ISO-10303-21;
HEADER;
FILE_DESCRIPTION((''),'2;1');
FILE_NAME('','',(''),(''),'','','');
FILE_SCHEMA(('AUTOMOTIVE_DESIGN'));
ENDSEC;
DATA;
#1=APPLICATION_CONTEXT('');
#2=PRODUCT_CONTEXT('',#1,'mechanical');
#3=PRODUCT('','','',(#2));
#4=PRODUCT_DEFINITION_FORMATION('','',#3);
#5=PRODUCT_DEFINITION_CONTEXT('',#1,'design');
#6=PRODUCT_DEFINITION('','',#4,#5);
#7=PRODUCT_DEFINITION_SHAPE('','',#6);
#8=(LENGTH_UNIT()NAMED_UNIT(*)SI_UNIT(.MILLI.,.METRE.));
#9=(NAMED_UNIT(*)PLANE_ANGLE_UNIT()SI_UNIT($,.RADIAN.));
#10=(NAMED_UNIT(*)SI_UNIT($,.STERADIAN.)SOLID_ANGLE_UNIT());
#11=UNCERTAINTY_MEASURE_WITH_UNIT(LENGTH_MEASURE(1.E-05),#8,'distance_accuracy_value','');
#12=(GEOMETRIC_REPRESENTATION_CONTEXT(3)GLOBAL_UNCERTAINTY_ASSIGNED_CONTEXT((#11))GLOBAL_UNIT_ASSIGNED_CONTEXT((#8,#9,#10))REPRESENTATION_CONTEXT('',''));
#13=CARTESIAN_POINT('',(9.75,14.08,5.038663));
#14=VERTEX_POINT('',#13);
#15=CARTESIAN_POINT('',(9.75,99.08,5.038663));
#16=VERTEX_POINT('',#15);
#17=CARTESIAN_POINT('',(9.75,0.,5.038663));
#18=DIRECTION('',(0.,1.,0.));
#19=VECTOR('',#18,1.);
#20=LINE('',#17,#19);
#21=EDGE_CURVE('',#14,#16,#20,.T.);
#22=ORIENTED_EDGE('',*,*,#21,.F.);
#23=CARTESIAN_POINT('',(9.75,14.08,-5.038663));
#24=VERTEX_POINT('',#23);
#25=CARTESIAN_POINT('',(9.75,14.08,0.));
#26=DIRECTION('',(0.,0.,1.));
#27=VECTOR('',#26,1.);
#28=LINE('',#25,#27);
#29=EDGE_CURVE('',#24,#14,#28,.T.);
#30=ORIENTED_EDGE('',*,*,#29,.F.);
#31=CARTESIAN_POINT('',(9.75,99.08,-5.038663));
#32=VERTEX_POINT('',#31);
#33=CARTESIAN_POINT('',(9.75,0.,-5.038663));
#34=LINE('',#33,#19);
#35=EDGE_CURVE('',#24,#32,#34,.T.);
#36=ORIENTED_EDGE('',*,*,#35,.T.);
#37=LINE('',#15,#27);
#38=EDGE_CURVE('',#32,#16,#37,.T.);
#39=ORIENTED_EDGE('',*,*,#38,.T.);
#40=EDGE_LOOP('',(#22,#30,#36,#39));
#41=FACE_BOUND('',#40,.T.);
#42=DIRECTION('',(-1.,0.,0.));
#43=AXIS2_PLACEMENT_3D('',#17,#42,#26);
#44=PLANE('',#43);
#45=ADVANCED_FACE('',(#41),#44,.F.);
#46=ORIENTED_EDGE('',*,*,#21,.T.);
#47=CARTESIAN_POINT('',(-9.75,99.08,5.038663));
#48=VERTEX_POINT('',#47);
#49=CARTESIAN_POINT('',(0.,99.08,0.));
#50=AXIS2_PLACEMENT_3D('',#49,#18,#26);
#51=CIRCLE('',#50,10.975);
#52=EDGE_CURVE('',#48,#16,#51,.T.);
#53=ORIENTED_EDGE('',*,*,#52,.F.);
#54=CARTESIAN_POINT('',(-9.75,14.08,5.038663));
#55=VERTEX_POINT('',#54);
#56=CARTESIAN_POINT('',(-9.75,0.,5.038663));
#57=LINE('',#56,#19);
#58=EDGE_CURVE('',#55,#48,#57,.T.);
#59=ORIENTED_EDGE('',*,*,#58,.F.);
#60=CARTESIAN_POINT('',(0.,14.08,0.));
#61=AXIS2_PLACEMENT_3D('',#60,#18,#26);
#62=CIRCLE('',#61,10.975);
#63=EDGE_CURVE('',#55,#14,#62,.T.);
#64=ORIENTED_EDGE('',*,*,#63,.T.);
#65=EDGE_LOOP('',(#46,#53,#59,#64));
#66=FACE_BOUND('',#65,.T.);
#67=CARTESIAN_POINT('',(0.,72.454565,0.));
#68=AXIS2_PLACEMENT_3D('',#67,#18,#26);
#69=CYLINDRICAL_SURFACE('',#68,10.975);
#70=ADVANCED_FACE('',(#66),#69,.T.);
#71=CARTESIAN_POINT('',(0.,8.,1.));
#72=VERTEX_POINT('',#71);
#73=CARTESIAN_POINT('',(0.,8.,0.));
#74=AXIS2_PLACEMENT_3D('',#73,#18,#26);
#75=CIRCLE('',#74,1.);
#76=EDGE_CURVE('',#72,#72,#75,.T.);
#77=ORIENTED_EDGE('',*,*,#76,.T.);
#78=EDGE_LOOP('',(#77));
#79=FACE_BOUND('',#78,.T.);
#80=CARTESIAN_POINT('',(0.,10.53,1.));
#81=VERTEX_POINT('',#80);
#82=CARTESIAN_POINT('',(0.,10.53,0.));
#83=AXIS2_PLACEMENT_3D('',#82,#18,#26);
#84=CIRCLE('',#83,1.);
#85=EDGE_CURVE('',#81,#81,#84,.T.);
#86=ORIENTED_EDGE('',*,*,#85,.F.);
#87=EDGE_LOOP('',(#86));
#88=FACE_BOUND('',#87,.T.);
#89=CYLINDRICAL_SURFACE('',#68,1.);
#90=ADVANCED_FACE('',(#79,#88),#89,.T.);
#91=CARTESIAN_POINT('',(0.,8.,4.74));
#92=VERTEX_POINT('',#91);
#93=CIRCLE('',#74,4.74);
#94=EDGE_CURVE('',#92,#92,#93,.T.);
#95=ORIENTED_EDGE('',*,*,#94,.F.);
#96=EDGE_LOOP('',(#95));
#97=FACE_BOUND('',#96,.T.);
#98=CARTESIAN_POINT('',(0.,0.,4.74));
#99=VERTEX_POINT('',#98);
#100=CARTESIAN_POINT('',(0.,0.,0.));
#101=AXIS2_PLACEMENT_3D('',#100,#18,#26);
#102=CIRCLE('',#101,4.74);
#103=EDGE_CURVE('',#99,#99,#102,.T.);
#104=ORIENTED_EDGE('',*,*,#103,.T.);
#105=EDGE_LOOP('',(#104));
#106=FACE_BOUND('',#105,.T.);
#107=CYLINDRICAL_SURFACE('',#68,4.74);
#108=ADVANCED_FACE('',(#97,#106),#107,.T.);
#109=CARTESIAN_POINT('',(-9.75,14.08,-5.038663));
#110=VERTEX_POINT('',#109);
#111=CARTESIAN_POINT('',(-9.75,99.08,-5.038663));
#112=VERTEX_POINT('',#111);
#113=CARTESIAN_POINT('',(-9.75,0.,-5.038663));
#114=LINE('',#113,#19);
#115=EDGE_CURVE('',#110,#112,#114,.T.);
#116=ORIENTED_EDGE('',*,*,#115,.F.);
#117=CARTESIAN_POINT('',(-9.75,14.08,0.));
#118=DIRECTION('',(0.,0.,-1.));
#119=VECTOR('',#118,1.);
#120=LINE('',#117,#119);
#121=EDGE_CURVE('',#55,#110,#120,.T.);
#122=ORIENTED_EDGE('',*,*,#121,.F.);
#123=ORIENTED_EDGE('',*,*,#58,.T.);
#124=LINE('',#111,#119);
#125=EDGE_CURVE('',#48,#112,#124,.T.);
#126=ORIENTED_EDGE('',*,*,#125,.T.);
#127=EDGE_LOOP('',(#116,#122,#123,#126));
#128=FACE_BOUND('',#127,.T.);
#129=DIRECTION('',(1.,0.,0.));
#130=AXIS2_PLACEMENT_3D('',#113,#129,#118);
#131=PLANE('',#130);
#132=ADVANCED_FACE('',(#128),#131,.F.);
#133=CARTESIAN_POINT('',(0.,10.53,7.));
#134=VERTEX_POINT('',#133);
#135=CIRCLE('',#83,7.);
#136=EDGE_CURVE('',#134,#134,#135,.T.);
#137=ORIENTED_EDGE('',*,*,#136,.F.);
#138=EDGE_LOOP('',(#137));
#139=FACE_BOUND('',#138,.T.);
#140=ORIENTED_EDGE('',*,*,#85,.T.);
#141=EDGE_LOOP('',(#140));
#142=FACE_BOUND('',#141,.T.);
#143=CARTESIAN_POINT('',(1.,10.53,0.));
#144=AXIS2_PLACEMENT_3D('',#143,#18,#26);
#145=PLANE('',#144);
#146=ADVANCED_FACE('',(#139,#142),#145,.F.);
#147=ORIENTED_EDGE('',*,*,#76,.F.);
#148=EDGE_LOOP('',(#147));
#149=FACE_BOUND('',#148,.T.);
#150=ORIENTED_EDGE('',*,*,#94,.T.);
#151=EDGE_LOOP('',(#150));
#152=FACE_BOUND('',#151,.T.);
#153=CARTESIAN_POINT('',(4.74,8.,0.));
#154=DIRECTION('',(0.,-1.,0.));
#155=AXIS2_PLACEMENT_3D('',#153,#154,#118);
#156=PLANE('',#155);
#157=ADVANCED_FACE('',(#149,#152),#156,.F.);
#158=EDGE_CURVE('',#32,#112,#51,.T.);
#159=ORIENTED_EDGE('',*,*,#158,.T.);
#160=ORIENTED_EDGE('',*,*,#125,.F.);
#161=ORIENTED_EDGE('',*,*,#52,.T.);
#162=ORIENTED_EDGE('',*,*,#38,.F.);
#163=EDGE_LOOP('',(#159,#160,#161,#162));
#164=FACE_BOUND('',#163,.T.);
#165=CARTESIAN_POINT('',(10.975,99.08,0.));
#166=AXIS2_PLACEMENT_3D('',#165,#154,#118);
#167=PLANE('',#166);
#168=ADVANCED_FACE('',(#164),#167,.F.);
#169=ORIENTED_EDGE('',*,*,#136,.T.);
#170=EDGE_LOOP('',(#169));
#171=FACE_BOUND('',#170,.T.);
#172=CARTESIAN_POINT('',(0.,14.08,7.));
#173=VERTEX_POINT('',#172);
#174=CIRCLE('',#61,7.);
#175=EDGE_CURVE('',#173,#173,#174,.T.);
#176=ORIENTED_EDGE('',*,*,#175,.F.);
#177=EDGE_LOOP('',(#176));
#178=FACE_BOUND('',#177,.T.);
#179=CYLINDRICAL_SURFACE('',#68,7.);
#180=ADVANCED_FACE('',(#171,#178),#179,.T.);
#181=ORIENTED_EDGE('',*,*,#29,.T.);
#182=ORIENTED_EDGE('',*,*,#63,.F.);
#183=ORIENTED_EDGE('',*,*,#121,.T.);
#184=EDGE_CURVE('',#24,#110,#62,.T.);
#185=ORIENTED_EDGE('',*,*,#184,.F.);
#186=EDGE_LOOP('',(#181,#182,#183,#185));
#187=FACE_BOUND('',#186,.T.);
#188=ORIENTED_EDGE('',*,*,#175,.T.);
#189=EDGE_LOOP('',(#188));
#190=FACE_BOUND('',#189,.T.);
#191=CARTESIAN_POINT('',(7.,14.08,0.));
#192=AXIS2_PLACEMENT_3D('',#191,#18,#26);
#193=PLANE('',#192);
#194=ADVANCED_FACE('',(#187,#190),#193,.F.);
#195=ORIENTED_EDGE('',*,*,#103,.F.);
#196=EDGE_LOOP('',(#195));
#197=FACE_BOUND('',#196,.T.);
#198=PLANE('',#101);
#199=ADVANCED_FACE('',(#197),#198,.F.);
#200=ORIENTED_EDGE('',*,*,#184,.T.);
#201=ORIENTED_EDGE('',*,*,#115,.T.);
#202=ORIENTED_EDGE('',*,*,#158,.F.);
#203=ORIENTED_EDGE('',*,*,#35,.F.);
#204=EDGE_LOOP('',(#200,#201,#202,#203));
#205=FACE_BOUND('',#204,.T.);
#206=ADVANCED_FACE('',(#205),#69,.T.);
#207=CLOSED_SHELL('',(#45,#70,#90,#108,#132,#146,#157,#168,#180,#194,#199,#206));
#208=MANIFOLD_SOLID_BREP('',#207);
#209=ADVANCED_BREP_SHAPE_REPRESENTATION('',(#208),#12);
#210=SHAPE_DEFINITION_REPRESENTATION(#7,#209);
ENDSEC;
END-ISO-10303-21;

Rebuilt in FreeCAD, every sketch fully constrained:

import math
import FreeCAD as App
import Part
import Sketcher
Q = App.Units.Quantity


def add_polygon(sketch, points):
    """Adds a closed chain of lines whose ends are joined by coincident constraints."""
    first, n = sketch.GeometryCount, len(points)
    for a, b in zip(points, points[1:] + points[:1]):
        sketch.addGeometry(Part.LineSegment(App.Vector(*a, 0), App.Vector(*b, 0)), False)
    for i in range(n):
        sketch.addConstraint(Sketcher.Constraint("Coincident", first + i, 2, first + (i + 1) % n, 1))

doc = App.newDocument("Part")
body = doc.addObject("PartDesign::Body", "Body")

# Sketch on XY plane
sketch1 = body.newObject("Sketcher::SketchObject", "Sketch")
sketch1.AttachmentSupport = (doc.getObject("XY_Plane"), [""])
sketch1.MapMode = "FlatFace"
add_polygon(sketch1, [(0, 0), (4.7, 0), (4.7, 8), (1, 8), (1, 10.5), (7, 10.5), (7, 14.1), (11, 14.1), (11, 99.1), (0, 99.1)])  # lines 0-9
sketch1.addConstraint([
    Sketcher.Constraint("Horizontal", 0),
    Sketcher.Constraint("Vertical", 1),
    Sketcher.Constraint("Horizontal", 2),
    Sketcher.Constraint("Vertical", 3),
    Sketcher.Constraint("Horizontal", 4),
    Sketcher.Constraint("Vertical", 5),
    Sketcher.Constraint("Horizontal", 6),
    Sketcher.Constraint("Vertical", 7),
    Sketcher.Constraint("Horizontal", 8),
    Sketcher.Constraint("Vertical", 9),
    Sketcher.Constraint("Coincident", 9, 2, -1, 1),
    Sketcher.Constraint("DistanceX", 4, 1, 4, 2, Q("6 mm")),
    Sketcher.Constraint("DistanceY", 1, 1, 1, 2, Q("8 mm")),
    Sketcher.Constraint("DistanceY", 7, 1, 7, 2, Q("85 mm")),
    Sketcher.Constraint("DistanceX", -1, 1, 2, 2, Q("1 mm")),
    Sketcher.Constraint("DistanceX", 0, 1, 0, 2, Q("4.74 mm")),
    Sketcher.Constraint("DistanceY", 3, 1, 3, 2, Q("2.53 mm")),
    Sketcher.Constraint("DistanceY", 5, 1, 5, 2, Q("3.55 mm")),
    Sketcher.Constraint("DistanceX", 6, 1, 6, 2, Q("3.975 mm")),
])
revolution = body.newObject("PartDesign::Revolution", "Revolution")
revolution.Profile = sketch1
revolution.ReferenceAxis = (sketch1, ["V_Axis"])
revolution.Angle = 360

# Sketch on XZ plane
sketch2 = body.newObject("Sketcher::SketchObject", "Sketch001")
sketch2.AttachmentSupport = (doc.getObject("XZ_Plane"), [""])
sketch2.MapMode = "FlatFace"
sketch2.AttachmentOffset = App.Placement(App.Vector(0, 0, -99.08), App.Rotation())
sketch2.addGeometry([
    Part.LineSegment(App.Vector(-10, 5, 0), App.Vector(-10, -5, 0)),
    Part.ArcOfCircle(Part.Circle(App.Vector(0, 0, 0), App.Vector(0, 0, 1), 11), math.radians(153), math.radians(207)),
    Part.LineSegment(App.Vector(10, -5, 0), App.Vector(10, 5, 0)),
    Part.ArcOfCircle(Part.Circle(App.Vector(0, 0, 0), App.Vector(0, 0, 1), 11), math.radians(-27), math.radians(27)),
], False)
sketch2.addConstraint([
    Sketcher.Constraint("Coincident", 0, 1, 1, 1),
    Sketcher.Constraint("Coincident", 1, 2, 0, 2),
    Sketcher.Constraint("Coincident", 2, 1, 3, 1),
    Sketcher.Constraint("Coincident", 3, 2, 2, 2),
    Sketcher.Constraint("Vertical", 0),
    Sketcher.Constraint("Vertical", 2),
    Sketcher.Constraint("Coincident", 1, 3, -1, 1),
    Sketcher.Constraint("Coincident", 3, 3, -1, 1),
    Sketcher.Constraint("Equal", 1, 3),
    Sketcher.Constraint("Horizontal", 1, 2, 2, 1),
    Sketcher.Constraint("Radius", 1, Q("10.975 mm")),
    Sketcher.Constraint("DistanceX", 1, 2, 2, 1, Q("19.5 mm")),
])
pocket1 = body.newObject("PartDesign::Pocket", "Pocket")
pocket1.Profile = sketch2
pocket1.Type = "ThroughAll"
pocket1.Reversed = True

doc.recompute()
